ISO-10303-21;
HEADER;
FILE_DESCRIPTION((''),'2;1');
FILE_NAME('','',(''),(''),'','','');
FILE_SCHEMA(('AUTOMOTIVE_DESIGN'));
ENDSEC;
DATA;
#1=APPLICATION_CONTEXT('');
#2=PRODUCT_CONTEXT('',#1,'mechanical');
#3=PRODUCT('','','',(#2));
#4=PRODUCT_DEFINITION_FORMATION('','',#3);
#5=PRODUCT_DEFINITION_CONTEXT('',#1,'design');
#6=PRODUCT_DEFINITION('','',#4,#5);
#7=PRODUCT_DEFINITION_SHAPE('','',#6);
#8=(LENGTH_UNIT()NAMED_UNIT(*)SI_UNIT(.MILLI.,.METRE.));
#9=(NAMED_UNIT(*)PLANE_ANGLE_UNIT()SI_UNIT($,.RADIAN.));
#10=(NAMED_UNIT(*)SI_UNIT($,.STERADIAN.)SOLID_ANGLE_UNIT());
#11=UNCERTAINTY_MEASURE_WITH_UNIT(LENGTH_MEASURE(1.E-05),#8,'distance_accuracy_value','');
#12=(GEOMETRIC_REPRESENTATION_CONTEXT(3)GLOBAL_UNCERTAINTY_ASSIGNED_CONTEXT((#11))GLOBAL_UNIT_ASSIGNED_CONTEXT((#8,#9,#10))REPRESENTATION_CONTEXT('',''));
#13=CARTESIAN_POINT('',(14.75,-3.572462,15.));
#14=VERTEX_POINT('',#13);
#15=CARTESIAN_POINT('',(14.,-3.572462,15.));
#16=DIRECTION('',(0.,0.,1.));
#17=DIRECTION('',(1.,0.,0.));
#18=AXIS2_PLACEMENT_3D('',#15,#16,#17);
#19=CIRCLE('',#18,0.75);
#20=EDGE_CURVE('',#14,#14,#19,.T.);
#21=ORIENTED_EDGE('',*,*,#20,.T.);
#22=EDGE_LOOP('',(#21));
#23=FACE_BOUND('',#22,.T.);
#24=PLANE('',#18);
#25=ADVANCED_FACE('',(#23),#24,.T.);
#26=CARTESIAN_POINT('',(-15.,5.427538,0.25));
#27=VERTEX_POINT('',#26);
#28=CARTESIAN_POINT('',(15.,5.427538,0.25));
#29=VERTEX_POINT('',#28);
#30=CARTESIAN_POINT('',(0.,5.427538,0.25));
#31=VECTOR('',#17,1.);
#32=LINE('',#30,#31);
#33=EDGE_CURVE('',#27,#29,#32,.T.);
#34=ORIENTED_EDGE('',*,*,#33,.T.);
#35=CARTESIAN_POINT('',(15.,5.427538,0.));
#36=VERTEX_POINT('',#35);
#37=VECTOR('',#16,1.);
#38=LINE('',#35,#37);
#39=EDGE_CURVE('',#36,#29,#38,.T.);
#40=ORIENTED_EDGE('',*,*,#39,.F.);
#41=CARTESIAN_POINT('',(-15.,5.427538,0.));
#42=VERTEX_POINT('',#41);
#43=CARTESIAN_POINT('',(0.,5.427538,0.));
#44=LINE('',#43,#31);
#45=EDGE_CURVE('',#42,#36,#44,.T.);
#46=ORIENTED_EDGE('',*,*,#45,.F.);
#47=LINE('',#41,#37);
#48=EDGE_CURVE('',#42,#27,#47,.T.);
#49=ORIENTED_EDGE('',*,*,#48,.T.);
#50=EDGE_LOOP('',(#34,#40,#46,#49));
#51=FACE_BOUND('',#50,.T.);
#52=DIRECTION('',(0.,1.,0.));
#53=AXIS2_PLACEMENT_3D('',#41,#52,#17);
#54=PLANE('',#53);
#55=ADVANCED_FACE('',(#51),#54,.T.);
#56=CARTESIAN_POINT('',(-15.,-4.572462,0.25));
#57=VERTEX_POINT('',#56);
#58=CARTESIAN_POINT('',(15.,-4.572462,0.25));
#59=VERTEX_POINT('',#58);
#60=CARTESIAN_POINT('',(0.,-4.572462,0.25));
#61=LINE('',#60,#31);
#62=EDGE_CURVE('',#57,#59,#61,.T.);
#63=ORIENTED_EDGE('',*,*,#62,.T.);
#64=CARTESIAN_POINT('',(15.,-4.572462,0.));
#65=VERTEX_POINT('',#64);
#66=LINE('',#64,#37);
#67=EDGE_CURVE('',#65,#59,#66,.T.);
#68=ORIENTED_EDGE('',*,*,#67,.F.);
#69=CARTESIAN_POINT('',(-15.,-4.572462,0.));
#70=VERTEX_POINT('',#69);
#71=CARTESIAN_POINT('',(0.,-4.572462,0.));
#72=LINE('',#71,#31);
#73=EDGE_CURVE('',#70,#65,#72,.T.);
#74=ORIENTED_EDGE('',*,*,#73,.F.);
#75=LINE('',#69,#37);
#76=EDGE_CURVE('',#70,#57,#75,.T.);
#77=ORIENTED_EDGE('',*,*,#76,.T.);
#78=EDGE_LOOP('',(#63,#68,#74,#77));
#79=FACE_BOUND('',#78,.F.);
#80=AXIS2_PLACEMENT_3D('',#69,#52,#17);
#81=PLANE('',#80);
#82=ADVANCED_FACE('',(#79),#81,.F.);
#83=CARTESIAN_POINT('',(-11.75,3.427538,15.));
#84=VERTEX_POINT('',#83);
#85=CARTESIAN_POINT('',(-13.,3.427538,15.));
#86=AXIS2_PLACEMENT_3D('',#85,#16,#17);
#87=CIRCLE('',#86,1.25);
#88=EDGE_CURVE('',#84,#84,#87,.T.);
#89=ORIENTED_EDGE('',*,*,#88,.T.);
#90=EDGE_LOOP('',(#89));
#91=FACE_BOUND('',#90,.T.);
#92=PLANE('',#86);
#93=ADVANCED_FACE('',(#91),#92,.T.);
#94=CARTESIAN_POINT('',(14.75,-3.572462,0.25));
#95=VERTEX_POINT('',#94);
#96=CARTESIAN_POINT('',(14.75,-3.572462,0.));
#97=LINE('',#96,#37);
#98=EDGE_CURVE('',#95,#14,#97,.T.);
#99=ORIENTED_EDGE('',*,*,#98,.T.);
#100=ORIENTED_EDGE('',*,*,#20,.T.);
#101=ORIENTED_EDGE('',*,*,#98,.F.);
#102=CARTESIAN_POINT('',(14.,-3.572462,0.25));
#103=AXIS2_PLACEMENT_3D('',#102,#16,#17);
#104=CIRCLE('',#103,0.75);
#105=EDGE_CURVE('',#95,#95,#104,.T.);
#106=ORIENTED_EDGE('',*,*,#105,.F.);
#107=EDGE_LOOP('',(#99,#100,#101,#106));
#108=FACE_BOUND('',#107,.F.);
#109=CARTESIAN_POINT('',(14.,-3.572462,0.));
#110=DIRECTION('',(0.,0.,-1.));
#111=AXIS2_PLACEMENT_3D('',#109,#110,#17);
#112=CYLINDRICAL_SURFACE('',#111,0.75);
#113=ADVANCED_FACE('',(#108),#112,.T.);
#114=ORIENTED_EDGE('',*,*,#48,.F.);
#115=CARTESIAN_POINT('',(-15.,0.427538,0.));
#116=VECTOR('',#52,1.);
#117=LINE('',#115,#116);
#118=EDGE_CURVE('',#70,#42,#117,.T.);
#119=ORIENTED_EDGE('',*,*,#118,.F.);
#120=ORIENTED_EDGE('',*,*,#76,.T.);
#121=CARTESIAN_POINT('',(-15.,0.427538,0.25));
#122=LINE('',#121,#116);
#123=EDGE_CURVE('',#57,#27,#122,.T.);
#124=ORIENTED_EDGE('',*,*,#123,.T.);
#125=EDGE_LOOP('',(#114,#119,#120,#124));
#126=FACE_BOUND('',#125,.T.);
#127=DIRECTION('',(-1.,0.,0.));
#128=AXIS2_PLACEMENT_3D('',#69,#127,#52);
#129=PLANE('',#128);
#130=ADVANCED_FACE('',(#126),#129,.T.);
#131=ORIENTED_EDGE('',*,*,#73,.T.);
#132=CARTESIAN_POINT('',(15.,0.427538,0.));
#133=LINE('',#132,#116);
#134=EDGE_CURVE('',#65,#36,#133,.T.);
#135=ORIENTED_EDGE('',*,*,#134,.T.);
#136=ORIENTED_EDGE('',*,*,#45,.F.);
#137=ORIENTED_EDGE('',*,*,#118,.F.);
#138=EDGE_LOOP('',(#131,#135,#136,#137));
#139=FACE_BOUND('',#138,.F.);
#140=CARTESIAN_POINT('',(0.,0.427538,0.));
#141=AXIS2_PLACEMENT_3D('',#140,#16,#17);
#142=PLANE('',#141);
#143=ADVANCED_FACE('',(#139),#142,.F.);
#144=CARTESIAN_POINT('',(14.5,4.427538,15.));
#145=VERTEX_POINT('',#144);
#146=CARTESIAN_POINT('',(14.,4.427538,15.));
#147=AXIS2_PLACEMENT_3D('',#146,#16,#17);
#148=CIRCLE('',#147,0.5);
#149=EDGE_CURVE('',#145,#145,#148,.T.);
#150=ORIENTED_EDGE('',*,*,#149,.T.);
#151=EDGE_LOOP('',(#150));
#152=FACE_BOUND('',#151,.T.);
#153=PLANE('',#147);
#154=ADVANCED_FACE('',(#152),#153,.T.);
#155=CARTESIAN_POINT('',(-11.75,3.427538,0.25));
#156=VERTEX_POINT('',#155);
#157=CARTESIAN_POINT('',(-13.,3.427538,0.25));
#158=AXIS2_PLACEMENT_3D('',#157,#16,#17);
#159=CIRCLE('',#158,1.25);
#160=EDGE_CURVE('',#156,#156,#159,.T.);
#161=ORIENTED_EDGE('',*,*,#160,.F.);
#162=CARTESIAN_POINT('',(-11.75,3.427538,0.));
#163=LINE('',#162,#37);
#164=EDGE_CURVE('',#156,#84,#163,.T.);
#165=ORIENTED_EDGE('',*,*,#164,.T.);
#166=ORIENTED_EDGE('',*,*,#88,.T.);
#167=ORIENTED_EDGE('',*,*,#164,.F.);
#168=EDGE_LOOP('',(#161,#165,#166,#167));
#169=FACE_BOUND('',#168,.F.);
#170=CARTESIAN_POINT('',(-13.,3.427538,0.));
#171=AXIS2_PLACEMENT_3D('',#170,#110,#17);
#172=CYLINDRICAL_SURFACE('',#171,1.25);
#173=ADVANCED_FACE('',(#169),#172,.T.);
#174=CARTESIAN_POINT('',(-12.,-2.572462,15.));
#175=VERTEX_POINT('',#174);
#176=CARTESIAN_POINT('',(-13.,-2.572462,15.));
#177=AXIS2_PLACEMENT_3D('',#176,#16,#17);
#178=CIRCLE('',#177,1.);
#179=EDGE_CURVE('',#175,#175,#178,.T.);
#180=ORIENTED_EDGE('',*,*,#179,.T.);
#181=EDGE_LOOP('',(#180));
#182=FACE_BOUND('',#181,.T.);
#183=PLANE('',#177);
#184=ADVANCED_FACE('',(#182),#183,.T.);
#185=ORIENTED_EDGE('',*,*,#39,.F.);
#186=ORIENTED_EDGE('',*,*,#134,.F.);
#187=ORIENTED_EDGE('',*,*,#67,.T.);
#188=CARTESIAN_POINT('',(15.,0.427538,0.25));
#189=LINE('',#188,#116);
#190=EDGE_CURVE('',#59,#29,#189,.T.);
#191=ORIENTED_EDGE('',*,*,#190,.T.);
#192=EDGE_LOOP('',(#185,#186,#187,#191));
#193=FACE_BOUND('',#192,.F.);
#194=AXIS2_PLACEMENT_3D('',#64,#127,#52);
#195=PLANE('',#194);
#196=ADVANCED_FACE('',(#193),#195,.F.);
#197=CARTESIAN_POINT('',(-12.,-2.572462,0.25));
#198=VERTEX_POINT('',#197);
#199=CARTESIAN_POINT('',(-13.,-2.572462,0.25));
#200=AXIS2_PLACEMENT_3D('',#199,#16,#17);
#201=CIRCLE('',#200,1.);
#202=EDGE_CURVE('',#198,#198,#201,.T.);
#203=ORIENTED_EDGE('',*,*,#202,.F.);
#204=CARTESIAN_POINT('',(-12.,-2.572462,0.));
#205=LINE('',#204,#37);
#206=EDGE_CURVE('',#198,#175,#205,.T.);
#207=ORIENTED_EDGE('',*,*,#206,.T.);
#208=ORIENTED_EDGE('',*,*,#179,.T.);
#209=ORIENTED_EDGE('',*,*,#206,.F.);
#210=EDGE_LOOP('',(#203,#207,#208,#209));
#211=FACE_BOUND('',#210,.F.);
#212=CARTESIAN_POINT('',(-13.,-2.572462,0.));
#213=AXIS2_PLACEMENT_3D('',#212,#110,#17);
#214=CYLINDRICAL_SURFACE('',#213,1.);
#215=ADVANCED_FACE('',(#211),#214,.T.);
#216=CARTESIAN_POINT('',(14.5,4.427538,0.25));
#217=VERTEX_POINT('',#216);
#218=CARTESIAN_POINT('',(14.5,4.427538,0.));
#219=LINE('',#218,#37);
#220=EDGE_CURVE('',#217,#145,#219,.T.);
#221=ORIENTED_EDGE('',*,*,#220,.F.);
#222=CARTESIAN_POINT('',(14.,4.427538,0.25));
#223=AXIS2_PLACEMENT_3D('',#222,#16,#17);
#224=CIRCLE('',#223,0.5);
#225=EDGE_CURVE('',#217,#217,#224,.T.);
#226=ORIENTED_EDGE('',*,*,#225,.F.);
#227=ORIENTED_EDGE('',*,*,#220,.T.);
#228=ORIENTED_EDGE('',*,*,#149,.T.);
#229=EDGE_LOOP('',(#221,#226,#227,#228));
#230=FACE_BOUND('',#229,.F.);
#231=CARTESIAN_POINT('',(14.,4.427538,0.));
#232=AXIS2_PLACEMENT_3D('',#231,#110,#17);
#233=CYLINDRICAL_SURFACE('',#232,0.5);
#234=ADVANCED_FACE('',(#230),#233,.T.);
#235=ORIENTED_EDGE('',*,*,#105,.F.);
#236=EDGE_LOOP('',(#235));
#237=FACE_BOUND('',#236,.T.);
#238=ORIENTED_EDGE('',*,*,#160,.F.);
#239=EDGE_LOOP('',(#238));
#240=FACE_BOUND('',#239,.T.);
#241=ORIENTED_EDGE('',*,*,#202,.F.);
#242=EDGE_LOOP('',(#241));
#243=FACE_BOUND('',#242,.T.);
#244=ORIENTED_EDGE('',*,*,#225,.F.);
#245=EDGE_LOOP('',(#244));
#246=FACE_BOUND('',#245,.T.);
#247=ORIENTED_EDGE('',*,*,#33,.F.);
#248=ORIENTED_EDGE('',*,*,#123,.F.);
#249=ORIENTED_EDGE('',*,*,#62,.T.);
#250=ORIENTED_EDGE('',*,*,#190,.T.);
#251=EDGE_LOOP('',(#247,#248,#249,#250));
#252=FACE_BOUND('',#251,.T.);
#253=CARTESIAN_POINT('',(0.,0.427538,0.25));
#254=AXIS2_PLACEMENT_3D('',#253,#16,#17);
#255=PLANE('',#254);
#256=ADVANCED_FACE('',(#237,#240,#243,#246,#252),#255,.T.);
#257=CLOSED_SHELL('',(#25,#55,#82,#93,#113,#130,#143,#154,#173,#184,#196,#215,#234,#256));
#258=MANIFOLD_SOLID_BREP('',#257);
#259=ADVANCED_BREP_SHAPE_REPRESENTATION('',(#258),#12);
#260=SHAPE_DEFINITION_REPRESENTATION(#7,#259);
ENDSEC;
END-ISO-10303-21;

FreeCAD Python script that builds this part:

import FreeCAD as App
import Part
import Sketcher

V = App.Vector
Q = App.Units.Quantity


def add_polygon(sketch, points):
    """Adds a closed chain of lines whose ends are joined by coincident constraints."""
    first, n = sketch.GeometryCount, len(points)
    for a, b in zip(points, points[1:] + points[:1]):
        sketch.addGeometry(Part.LineSegment(App.Vector(*a, 0), App.Vector(*b, 0)), False)
    for i in range(n):
        sketch.addConstraint(Sketcher.Constraint("Coincident", first + i, 2, first + (i + 1) % n, 1))

doc = App.newDocument("Part")
body = doc.addObject("PartDesign::Body", "Body")

sketch1 = body.newObject("Sketcher::SketchObject", "Sketch")
sketch1.AttachmentSupport = (doc.getObject("XY_Plane"), [""])
sketch1.MapMode = "FlatFace"
add_polygon(sketch1, [(-15, 5.4), (-15, -4.6), (15, -4.6), (15, 5.4)])
sketch1.addGeometry(Part.Circle(V(-13, -2.6, 0), V(0, 0, 1), 1), False)
sketch1.addGeometry(Part.Circle(V(14, -3.6, 0), V(0, 0, 1), 0.8), False)
sketch1.addGeometry(Part.Circle(V(-13, 3.4, 0), V(0, 0, 1), 1.2), False)
sketch1.addGeometry(Part.Circle(V(14, 4.4, 0), V(0, 0, 1), 0.5), False)
sketch1.addConstraint(Sketcher.Constraint("Vertical", 0))
sketch1.addConstraint(Sketcher.Constraint("Horizontal", 1))
sketch1.addConstraint(Sketcher.Constraint("Vertical", 2))
sketch1.addConstraint(Sketcher.Constraint("Horizontal", 3))
sketch1.addConstraint(Sketcher.Constraint("Vertical", 4, 3, 6, 3))
sketch1.addConstraint(Sketcher.Constraint("Vertical", 5, 3, 7, 3))
sketch1.addConstraint(Sketcher.Constraint("Diameter", 4, Q("2 mm")))
sketch1.addConstraint(Sketcher.Constraint("Diameter", 7, Q("1 mm")))
sketch1.addConstraint(Sketcher.Constraint("Diameter", 5, Q("1.5 mm")))
sketch1.addConstraint(Sketcher.Constraint("Diameter", 6, Q("2.5 mm")))
sketch1.addConstraint(Sketcher.Constraint("DistanceX", 1, 1, 1, 2, Q("30 mm")))
sketch1.addConstraint(Sketcher.Constraint("DistanceY", 0, 2, 0, 1, Q("10 mm")))
sketch1.addConstraint(Sketcher.Constraint("DistanceX", 4, 3, -1, 1, Q("13 mm")))
sketch1.addConstraint(Sketcher.Constraint("DistanceX", -1, 1, 5, 3, Q("14 mm")))
sketch1.addConstraint(Sketcher.Constraint("DistanceX", 0, 2, -1, 1, Q("15 mm")))
sketch1.addConstraint(Sketcher.Constraint("DistanceY", 5, 3, 4, 3, Q("1 mm")))
sketch1.addConstraint(Sketcher.Constraint("DistanceY", 4, 3, 6, 3, Q("6 mm")))
sketch1.addConstraint(Sketcher.Constraint("DistanceY", 5, 3, 7, 3, Q("8 mm")))
sketch1.addConstraint(Sketcher.Constraint("DistanceY", 0, 2, 4, 3, Q("2 mm")))
sketch1.addConstraint(Sketcher.Constraint("DistanceY", 4, 3, -1, 1, Q("2.572462 mm")))
pad1 = body.newObject("PartDesign::Pad", "Pad")
pad1.Profile = sketch1
pad1.Length = 0.25

sketch2 = body.newObject("Sketcher::SketchObject", "Sketch001")
sketch2.AttachmentSupport = (doc.getObject("XY_Plane"), [""])
sketch2.MapMode = "FlatFace"
sketch2.addGeometry(Part.Circle(V(-13, 3.4, 0), V(0, 0, 1), 1.2), False)
sketch2.addGeometry(Part.Circle(V(-13, -2.6, 0), V(0, 0, 1), 1), False)
sketch2.addGeometry(Part.Circle(V(14, -3.6, 0), V(0, 0, 1), 0.8), False)
sketch2.addGeometry(Part.Circle(V(14, 4.4, 0), V(0, 0, 1), 0.5), False)
sketch2.addConstraint(Sketcher.Constraint("Vertical", 0, 3, 1, 3))
sketch2.addConstraint(Sketcher.Constraint("Vertical", 2, 3, 3, 3))
sketch2.addConstraint(Sketcher.Constraint("Diameter", 1, Q("2 mm")))
sketch2.addConstraint(Sketcher.Constraint("Diameter", 3, Q("1 mm")))
sketch2.addConstraint(Sketcher.Constraint("Diameter", 0, Q("2.5 mm")))
sketch2.addConstraint(Sketcher.Constraint("Diameter", 2, Q("1.5 mm")))
sketch2.addConstraint(Sketcher.Constraint("DistanceX", 0, 3, -1, 1, Q("13 mm")))
sketch2.addConstraint(Sketcher.Constraint("DistanceX", -1, 1, 2, 3, Q("14 mm")))
sketch2.addConstraint(Sketcher.Constraint("DistanceY", 1, 3, 0, 3, Q("6 mm")))
sketch2.addConstraint(Sketcher.Constraint("DistanceY", 2, 3, 1, 3, Q("1 mm")))
sketch2.addConstraint(Sketcher.Constraint("DistanceY", 2, 3, 3, 3, Q("8 mm")))
sketch2.addConstraint(Sketcher.Constraint("DistanceY", -1, 1, 0, 3, Q("3.427538 mm")))
pad2 = body.newObject("PartDesign::Pad", "Pad001")
pad2.Profile = sketch2
pad2.Length = 15

doc.recompute()
